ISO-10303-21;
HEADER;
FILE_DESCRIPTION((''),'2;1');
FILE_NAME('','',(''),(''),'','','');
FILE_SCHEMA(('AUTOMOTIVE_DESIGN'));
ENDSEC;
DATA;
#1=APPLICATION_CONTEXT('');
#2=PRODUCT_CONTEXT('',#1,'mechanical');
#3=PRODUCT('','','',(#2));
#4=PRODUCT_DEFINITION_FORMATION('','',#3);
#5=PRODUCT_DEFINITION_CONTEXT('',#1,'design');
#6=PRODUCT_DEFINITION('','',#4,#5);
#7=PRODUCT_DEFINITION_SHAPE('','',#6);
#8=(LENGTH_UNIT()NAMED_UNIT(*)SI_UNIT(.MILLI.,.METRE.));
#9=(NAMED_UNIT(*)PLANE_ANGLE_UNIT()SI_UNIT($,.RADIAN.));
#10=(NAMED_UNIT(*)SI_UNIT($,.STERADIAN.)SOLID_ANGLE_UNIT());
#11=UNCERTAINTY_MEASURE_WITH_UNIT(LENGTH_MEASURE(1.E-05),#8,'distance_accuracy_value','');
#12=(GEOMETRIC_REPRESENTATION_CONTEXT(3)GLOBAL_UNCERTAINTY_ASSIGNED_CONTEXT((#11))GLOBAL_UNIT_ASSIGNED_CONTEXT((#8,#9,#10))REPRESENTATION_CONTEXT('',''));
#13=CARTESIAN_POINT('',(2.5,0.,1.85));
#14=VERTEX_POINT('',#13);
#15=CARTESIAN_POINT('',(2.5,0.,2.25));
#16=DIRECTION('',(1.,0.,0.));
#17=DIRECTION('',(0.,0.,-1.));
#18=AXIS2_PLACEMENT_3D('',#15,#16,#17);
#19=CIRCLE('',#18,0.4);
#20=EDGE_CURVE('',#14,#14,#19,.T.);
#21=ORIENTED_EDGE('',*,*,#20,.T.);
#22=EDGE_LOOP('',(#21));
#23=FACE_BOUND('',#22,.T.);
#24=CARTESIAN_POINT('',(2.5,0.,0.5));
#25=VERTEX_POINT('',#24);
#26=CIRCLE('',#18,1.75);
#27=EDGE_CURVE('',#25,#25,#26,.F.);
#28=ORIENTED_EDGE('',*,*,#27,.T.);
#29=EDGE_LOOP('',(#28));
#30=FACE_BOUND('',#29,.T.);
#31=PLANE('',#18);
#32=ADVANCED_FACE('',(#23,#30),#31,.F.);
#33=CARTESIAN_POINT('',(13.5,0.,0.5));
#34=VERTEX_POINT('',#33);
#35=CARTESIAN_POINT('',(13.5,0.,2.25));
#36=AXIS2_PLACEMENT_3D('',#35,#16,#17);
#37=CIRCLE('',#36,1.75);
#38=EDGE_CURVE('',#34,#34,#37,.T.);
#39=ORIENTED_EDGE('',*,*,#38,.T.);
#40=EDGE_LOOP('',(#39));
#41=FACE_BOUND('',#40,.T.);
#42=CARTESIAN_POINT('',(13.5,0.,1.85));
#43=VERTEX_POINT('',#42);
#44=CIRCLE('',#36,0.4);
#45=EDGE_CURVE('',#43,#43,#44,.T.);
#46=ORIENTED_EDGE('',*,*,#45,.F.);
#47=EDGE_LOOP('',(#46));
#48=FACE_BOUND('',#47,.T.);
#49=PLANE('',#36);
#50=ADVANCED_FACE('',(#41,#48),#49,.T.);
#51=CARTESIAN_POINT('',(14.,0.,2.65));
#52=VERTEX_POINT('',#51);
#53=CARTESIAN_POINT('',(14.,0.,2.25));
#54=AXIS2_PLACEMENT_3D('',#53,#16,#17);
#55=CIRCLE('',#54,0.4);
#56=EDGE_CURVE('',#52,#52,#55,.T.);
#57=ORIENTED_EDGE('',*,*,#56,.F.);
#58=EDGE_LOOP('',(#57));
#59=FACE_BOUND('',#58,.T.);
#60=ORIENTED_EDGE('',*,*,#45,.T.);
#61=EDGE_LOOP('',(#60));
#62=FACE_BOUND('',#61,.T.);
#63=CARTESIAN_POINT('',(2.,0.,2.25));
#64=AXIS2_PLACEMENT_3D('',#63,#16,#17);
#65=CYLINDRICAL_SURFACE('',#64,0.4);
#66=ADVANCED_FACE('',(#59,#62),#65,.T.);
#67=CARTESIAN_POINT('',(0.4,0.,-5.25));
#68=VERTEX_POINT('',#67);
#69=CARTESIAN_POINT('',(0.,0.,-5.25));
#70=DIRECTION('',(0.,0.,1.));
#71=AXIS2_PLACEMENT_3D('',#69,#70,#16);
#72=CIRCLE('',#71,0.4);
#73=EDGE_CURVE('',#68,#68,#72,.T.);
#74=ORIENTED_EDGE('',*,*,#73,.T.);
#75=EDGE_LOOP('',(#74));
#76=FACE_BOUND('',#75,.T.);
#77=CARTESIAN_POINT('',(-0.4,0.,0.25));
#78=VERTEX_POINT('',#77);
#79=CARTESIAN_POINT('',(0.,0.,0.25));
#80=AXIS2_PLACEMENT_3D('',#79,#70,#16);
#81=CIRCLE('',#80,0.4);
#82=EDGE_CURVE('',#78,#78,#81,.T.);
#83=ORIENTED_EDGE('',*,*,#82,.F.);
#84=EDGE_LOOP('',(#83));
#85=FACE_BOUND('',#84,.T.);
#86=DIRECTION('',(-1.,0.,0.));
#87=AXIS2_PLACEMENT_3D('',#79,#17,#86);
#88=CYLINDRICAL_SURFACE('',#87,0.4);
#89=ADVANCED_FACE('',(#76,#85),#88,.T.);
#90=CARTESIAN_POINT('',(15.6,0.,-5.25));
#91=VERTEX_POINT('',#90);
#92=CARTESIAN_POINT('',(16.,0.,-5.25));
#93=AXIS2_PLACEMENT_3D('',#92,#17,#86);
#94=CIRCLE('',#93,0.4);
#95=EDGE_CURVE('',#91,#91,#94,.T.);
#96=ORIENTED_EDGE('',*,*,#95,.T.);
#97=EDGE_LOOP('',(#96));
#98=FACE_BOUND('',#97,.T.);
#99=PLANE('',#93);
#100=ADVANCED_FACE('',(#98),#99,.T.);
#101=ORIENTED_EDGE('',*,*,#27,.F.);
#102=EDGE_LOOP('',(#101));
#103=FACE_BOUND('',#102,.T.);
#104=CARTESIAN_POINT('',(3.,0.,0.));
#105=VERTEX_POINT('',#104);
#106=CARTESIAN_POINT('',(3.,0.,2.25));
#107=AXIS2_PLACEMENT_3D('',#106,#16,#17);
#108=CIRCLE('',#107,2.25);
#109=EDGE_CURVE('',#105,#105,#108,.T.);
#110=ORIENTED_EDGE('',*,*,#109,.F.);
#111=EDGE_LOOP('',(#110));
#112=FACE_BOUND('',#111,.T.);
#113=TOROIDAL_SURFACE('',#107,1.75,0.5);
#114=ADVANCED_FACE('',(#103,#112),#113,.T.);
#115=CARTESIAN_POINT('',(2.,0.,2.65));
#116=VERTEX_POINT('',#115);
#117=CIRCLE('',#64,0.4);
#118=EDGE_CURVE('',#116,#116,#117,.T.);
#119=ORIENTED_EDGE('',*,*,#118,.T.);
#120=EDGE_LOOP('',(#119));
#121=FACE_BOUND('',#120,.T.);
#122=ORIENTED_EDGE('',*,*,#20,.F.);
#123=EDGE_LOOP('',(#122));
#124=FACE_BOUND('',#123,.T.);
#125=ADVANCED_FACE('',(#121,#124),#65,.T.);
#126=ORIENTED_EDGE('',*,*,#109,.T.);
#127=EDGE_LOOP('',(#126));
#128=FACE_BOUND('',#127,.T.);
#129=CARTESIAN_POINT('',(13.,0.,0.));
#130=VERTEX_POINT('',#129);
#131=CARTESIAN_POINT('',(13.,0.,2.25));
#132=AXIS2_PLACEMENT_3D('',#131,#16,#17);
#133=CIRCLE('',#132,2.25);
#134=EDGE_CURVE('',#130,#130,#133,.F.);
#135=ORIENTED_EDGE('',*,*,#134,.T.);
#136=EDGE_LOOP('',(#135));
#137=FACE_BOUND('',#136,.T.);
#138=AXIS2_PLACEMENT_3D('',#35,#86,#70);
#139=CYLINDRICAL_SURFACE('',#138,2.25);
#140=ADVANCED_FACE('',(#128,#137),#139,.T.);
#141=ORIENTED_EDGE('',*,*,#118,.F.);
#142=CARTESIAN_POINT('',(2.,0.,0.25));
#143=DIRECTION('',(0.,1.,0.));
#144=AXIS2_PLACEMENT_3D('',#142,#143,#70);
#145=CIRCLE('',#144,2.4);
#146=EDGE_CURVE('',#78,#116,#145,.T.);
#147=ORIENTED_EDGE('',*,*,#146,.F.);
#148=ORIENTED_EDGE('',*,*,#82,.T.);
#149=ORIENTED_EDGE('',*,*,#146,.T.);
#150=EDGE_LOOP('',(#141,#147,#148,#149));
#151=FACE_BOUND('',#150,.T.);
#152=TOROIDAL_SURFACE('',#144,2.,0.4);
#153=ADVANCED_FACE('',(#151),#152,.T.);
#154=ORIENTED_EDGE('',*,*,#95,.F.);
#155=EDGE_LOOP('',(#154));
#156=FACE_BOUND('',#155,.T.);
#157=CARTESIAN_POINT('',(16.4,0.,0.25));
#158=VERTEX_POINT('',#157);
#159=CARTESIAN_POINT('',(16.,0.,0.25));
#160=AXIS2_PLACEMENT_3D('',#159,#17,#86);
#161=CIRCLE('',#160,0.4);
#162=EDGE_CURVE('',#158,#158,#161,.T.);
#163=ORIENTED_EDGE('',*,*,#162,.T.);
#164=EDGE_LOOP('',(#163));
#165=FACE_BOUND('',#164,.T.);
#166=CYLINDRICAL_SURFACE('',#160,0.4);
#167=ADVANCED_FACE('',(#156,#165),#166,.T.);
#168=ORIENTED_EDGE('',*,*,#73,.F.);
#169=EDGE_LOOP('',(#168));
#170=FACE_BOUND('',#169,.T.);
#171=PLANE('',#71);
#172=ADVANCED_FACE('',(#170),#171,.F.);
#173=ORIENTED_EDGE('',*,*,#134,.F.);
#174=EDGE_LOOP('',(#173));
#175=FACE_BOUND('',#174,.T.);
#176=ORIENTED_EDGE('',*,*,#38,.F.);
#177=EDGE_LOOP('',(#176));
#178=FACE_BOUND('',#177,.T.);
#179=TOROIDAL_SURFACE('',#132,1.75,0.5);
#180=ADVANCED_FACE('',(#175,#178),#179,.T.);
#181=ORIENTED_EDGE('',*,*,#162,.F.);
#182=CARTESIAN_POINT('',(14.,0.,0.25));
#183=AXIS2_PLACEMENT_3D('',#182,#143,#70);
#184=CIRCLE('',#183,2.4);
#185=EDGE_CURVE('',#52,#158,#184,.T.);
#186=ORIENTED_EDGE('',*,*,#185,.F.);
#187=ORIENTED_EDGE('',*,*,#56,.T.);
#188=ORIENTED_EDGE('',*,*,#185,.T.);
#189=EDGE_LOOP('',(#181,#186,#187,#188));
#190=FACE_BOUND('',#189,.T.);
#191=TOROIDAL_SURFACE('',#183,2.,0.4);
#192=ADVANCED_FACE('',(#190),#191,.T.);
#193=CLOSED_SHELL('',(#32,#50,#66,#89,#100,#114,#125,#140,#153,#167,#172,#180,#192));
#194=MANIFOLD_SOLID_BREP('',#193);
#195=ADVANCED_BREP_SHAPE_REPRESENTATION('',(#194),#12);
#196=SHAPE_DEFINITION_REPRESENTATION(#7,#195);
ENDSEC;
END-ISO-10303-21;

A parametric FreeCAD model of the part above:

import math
import FreeCAD as App
import Part
import Sketcher

V = App.Vector
Q = App.Units.Quantity


def edges_at(feature, points):
    """Names of the edges that pass closest to the given points."""
    edges = feature.Shape.Edges
    near = lambda p: min(range(len(edges)), key=lambda i: edges[i].distToShape(Part.Vertex(*p))[0])
    return sorted({f"Edge{near(p) + 1}" for p in points})

doc = App.newDocument("Part")
params = doc.addObject("Spreadsheet::Sheet", "Params")
for row, (alias, value) in enumerate([
    ("sketch1_diameter", "4.5 mm"),
    ("pad1_length", "11 mm"),
    ("sketch2_diameter", "0.8 mm"),
    ("sketch3_radius", "2 mm"),
    ("sketch3_width", "12 mm"),
    ("sketch3_height", "5.5 mm"),
    ("fillet_radius", "0.5 mm"),
], start=1):
    params.set(f"A{row}", alias)
    params.set(f"B{row}", "=" + value)
    params.setAlias(f"B{row}", alias)

body = doc.addObject("PartDesign::Body", "Body")

# Sketch on YZ plane
sketch1 = body.newObject("Sketcher::SketchObject", "Sketch")
sketch1.AttachmentSupport = (doc.getObject("YZ_Plane"), [""])
sketch1.MapMode = "FlatFace"
sketch1.AttachmentOffset = App.Placement(V(0, 0, 2.5), App.Rotation())
sketch1.addGeometry(Part.Circle(V(0, 2.25, 0), V(0, 0, 1), 2.25), False)
sketch1.addConstraint([
    Sketcher.Constraint("PointOnObject", 0, 3, -2),
    Sketcher.Constraint("Diameter", 0, Q("4.5 mm")),
    Sketcher.Constraint("DistanceY", -1, 1, 0, 3, Q("2.25 mm")),
])
sketch1.setExpression("Constraints[1]", "Params.sketch1_diameter")
pad1 = body.newObject("PartDesign::Pad", "Pad")
pad1.Profile = sketch1
pad1.setExpression("Length", "Params.pad1_length")

# Sketch on XY plane
sketch2 = body.newObject("Sketcher::SketchObject", "Sketch001")
sketch2.AttachmentSupport = (doc.getObject("XY_Plane"), [""])
sketch2.MapMode = "FlatFace"
sketch2.AttachmentOffset = App.Placement(V(0, 0, -5.25), App.Rotation())
sketch2.addGeometry(Part.Circle(V(0, 0, 0), V(0, 0, 1), 0.4), False)
sketch2.addConstraint([
    Sketcher.Constraint("Coincident", 0, 3, -1, 1),
    Sketcher.Constraint("Diameter", 0, Q("0.8 mm")),
])
sketch2.setExpression("Constraints[1]", "Params.sketch2_diameter")

# Sketch on XZ plane
sketch3 = body.newObject("Sketcher::SketchObject", "Sketch002")
sketch3.AttachmentSupport = (doc.getObject("XZ_Plane"), [""])
sketch3.MapMode = "FlatFace"
sketch3.addGeometry([
    Part.LineSegment(V(0, -5.25, 0), V(0, 0.25, 0)),  # 0
    Part.ArcOfCircle(Part.Circle(V(2, 0.25, 0), V(0, 0, 1), 2), math.radians(90), math.radians(180)),  # 1
    Part.LineSegment(V(2, 2.25, 0), V(14, 2.25, 0)),  # 2
    Part.ArcOfCircle(Part.Circle(V(14, 0.25, 0), V(0, 0, 1), 2), math.radians(0), math.radians(90)),  # 3
    Part.LineSegment(V(16, 0.25, 0), V(16, -5.25, 0)),  # 4
], False)
sketch3.addConstraint([
    Sketcher.Constraint("Tangent", 0, 2, 1, 2),
    Sketcher.Constraint("Tangent", 1, 1, 2, 1),
    Sketcher.Constraint("Tangent", 2, 2, 3, 2),
    Sketcher.Constraint("Tangent", 3, 1, 4, 1),
    Sketcher.Constraint("Vertical", 0),
    Sketcher.Constraint("Horizontal", 2),
    Sketcher.Constraint("Vertical", 4),
    Sketcher.Constraint("Equal", 1, 3),
    Sketcher.Constraint("PointOnObject", 0, 1, -2),
    Sketcher.Constraint("Horizontal", 0, 1, 4, 2),
    Sketcher.Constraint("Radius", 1, Q("2 mm")),
    Sketcher.Constraint("DistanceX", 2, 1, 2, 2, Q("12 mm")),
    Sketcher.Constraint("DistanceY", 0, 1, 0, 2, Q("5.5 mm")),
    Sketcher.Constraint("DistanceY", -1, 1, 1, 3, Q("0.25 mm")),
])
sketch3.setExpression("Constraints[10]", "Params.sketch3_radius")
sketch3.setExpression("Constraints[11]", "Params.sketch3_width")
sketch3.setExpression("Constraints[12]", "Params.sketch3_height")
doc.recompute()

additivepipe = body.newObject("PartDesign::AdditivePipe", "AdditivePipe")
additivepipe.Profile = sketch2
additivepipe.Spine = (sketch3, ["Edge1", "Edge2", "Edge3", "Edge4", "Edge5"])
doc.recompute()

fillet = body.newObject("PartDesign::Fillet", "Fillet")
fillet.Base = (additivepipe, edges_at(additivepipe, [(2.5, 0, 4.5), (13.5, 0, 4.5)]))
fillet.setExpression("Radius", "Params.fillet_radius")

doc.recompute()
